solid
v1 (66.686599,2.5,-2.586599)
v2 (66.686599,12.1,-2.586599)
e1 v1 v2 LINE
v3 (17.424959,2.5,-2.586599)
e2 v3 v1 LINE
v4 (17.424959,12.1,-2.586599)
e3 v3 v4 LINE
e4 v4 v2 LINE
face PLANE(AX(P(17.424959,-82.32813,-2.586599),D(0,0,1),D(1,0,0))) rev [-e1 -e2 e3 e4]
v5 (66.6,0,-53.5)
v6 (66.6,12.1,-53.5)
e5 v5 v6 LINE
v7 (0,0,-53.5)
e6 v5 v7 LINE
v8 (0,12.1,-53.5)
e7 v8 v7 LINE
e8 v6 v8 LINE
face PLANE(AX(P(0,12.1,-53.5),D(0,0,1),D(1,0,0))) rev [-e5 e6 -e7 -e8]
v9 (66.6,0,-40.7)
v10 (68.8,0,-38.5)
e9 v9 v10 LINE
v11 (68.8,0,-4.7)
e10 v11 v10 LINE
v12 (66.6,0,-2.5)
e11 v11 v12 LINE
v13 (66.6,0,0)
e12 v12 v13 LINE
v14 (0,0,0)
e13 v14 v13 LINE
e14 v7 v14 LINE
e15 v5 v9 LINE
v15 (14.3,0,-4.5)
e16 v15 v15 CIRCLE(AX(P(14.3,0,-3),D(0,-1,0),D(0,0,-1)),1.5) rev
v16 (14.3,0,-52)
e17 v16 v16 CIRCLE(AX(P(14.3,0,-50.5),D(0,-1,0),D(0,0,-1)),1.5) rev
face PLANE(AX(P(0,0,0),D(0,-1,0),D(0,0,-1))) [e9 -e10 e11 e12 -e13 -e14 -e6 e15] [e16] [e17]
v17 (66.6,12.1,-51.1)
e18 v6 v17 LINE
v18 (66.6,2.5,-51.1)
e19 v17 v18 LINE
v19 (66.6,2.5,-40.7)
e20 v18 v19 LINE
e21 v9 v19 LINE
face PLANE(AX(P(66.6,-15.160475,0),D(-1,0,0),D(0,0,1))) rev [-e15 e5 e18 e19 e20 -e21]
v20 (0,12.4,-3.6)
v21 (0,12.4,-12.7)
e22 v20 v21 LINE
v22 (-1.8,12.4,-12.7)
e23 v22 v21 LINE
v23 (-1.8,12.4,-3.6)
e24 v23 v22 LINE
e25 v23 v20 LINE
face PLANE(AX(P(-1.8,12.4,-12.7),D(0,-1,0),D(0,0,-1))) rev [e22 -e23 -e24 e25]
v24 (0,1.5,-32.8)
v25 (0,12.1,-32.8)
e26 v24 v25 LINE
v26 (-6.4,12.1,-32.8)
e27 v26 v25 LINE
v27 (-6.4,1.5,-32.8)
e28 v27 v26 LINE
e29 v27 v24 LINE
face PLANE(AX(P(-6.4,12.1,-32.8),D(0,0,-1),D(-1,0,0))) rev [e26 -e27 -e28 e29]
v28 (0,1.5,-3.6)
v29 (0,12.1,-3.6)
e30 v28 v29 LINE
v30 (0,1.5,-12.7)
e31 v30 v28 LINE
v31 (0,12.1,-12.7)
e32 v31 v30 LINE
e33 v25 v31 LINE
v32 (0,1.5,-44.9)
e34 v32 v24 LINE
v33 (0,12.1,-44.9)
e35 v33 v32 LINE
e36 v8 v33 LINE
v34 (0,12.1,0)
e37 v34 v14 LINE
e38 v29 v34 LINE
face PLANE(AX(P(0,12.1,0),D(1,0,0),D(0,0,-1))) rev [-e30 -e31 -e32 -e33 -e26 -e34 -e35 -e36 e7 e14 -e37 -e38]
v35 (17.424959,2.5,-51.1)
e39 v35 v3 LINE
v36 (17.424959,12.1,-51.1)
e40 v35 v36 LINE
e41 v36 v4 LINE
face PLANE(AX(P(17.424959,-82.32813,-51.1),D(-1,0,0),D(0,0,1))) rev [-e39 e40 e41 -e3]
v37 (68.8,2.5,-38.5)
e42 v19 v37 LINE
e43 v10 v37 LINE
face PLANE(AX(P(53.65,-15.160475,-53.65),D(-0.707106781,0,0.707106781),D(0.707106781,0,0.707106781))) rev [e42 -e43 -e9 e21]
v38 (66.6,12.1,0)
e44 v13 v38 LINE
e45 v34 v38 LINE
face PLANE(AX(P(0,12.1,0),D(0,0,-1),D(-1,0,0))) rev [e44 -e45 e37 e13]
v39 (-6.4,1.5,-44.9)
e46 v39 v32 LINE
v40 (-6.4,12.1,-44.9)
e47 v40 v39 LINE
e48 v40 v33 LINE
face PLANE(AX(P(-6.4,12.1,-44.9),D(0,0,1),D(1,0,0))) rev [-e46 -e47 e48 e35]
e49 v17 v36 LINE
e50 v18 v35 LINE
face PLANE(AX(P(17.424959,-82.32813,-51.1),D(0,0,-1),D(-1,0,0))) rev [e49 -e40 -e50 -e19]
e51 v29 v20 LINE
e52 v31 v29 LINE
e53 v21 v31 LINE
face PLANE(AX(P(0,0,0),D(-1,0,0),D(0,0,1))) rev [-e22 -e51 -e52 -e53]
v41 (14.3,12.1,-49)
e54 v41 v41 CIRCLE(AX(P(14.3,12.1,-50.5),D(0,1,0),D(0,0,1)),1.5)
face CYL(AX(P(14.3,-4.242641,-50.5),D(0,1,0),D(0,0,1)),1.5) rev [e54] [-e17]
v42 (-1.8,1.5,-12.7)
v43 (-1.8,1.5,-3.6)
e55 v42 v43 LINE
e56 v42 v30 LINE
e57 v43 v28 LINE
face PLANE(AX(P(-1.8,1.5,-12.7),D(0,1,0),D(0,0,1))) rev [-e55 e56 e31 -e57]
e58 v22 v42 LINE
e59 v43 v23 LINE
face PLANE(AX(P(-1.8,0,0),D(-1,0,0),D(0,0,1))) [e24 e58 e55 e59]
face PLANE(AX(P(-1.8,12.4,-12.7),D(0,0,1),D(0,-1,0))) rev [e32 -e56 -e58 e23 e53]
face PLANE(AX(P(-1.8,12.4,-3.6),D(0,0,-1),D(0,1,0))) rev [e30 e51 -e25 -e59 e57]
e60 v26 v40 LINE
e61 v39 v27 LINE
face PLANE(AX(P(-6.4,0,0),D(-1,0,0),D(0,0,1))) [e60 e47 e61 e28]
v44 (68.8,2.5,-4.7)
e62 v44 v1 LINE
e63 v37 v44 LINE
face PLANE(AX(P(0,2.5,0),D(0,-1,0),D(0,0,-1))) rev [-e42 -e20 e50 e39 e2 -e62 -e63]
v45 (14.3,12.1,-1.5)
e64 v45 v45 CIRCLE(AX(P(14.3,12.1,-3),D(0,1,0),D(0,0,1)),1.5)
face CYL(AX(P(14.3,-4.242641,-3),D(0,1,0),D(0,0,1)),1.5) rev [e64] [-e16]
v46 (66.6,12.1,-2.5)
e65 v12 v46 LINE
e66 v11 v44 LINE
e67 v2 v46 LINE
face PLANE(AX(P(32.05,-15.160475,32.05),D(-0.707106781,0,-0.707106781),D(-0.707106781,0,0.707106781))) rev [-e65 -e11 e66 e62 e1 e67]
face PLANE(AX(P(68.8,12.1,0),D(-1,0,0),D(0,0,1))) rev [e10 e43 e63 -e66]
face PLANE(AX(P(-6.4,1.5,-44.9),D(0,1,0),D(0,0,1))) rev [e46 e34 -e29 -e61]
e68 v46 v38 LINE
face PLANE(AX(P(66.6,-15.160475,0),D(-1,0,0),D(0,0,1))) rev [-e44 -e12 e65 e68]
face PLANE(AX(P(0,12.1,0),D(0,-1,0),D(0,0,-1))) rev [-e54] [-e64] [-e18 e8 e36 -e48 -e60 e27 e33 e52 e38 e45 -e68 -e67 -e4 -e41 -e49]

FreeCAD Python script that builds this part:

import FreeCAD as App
import Part
import Sketcher

V = App.Vector

doc = App.newDocument("Part")
body = doc.addObject("PartDesign::Body", "Body")

# Sketch on XZ plane
sketch1 = body.newObject("Sketcher::SketchObject", "Sketch")
sketch1.AttachmentSupport = (doc.getObject("XZ_Plane"), [""])
sketch1.MapMode = "FlatFace"
sketch1.addGeometry([
    Part.LineSegment(V(0, -54, 0), V(0, 0, 0)),
    Part.LineSegment(V(0, 0, 0), V(69, 0, 0)),
    Part.LineSegment(V(69, 0, 0), V(69, -54, 0)),
    Part.LineSegment(V(69, -54, 0), V(0, -54, 0)),
], False)
sketch1.addConstraint([
    Sketcher.Constraint("Coincident", 0, 2, 1, 1),
    Sketcher.Constraint("Coincident", 1, 2, 2, 1),
    Sketcher.Constraint("Coincident", 2, 2, 3, 1),
    Sketcher.Constraint("Coincident", 3, 2, 0, 1),
    Sketcher.Constraint("Vertical", 0),
    Sketcher.Constraint("Horizontal", 1),
    Sketcher.Constraint("Vertical", 2),
    Sketcher.Constraint("Horizontal", 3),
    Sketcher.Constraint("Coincident", 0, 2, -1, 1),
    Sketcher.Constraint("DistanceX", 1, 1, 1, 2, 68.8),
    Sketcher.Constraint("DistanceY", 0, 1, 0, 2, 53.5),
])
pad1 = body.newObject("PartDesign::Pad", "Pad")
pad1.Profile = sketch1
pad1.Length = 12.1
pad1.Reversed = True

# Sketch on XZ plane
sketch2 = body.newObject("Sketcher::SketchObject", "Sketch001")
sketch2.AttachmentSupport = (doc.getObject("XZ_Plane"), [""])
sketch2.MapMode = "FlatFace"
sketch2.AttachmentOffset = App.Placement(V(0, 0, -12.1), App.Rotation())
sketch2.addGeometry([
    Part.LineSegment(V(68.8, 0, 0), V(68.8, -4.7, 0)),  # 0
    Part.LineSegment(V(68.8, -4.7, 0), V(66.6, -2.5, 0)),  # 1
    Part.LineSegment(V(66.6, -2.5, 0), V(66.6, 0, 0)),  # 2
    Part.LineSegment(V(66.6, 0, 0), V(68.8, 0, 0)),  # 3
    Part.LineSegment(V(68.8, -53.5, 0), V(66.6, -53.5, 0)),  # 4
    Part.LineSegment(V(66.6, -53.5, 0), V(66.6, -40.7, 0)),  # 5
    Part.LineSegment(V(66.6, -40.7, 0), V(68.8, -38.5, 0)),  # 6
    Part.LineSegment(V(68.8, -38.5, 0), V(68.8, -53.5, 0)),  # 7
], False)
sketch2.addConstraint([
    Sketcher.Constraint("Coincident", 0, 2, 1, 1),
    Sketcher.Constraint("Coincident", 1, 2, 2, 1),
    Sketcher.Constraint("Coincident", 2, 2, 3, 1),
    Sketcher.Constraint("Coincident", 3, 2, 0, 1),
    Sketcher.Constraint("Coincident", 4, 2, 5, 1),
    Sketcher.Constraint("Coincident", 5, 2, 6, 1),
    Sketcher.Constraint("Coincident", 6, 2, 7, 1),
    Sketcher.Constraint("Coincident", 7, 2, 4, 1),
    Sketcher.Constraint("Vertical", 0),
    Sketcher.Constraint("Vertical", 2),
    Sketcher.Constraint("Horizontal", 3),
    Sketcher.Constraint("Horizontal", 4),
    Sketcher.Constraint("Vertical", 5),
    Sketcher.Constraint("Vertical", 7),
    Sketcher.Constraint("PointOnObject", 2, 2, -1),
    Sketcher.Constraint("Perpendicular", 1, 6),
    Sketcher.Constraint("Vertical", 2, 2, 4, 2),
    Sketcher.Constraint("Vertical", 3, 2, 6, 2),
    Sketcher.Constraint("Equal", 1, 6),
    Sketcher.Constraint("DistanceY", 7, 2, 7, 1, 15.0),
    Sketcher.Constraint("DistanceX", 3, 1, 3, 2, 2.2),
    Sketcher.Constraint("DistanceY", 0, 2, 0, 1, 4.7),
    Sketcher.Constraint("DistanceY", 4, 2, 1, 2, 51.0),
    Sketcher.Constraint("DistanceX", -1, 1, 0, 2, 68.8),
])
pocket1 = body.newObject("PartDesign::Pocket", "Pocket")
pocket1.Profile = sketch2
pocket1.Length = 12.1
pocket1.Reversed = True

# Sketch on YZ plane
sketch3 = body.newObject("Sketcher::SketchObject", "Sketch002")
sketch3.AttachmentSupport = (doc.getObject("YZ_Plane"), [""])
sketch3.MapMode = "FlatFace"
sketch3.addGeometry([
    Part.LineSegment(V(12, -45, 0), V(2, -45, 0)),
    Part.LineSegment(V(2, -45, 0), V(2, -33, 0)),
    Part.LineSegment(V(2, -33, 0), V(12, -33, 0)),
    Part.LineSegment(V(12, -33, 0), V(12, -45, 0)),
], False)
sketch3.addConstraint([
    Sketcher.Constraint("Coincident", 0, 2, 1, 1),
    Sketcher.Constraint("Coincident", 1, 2, 2, 1),
    Sketcher.Constraint("Coincident", 2, 2, 3, 1),
    Sketcher.Constraint("Coincident", 3, 2, 0, 1),
    Sketcher.Constraint("Horizontal", 0),
    Sketcher.Constraint("Vertical", 1),
    Sketcher.Constraint("Horizontal", 2),
    Sketcher.Constraint("Vertical", 3),
    Sketcher.Constraint("DistanceX", 0, 2, 0, 1, 10.6),
    Sketcher.Constraint("DistanceY", 1, 1, 1, 2, 12.1),
    Sketcher.Constraint("DistanceX", -1, 1, 0, 2, 1.5),
    Sketcher.Constraint("DistanceY", 0, 2, -1, 1, 44.9),
])
pad2 = body.newObject("PartDesign::Pad", "Pad001")
pad2.Profile = sketch3
pad2.Length = 6.4
pad2.Reversed = True

# Sketch on YZ plane
sketch4 = body.newObject("Sketcher::SketchObject", "Sketch003")
sketch4.AttachmentSupport = (doc.getObject("YZ_Plane"), [""])
sketch4.MapMode = "FlatFace"
sketch4.addGeometry([
    Part.LineSegment(V(12, -13, 0), V(2, -13, 0)),
    Part.LineSegment(V(2, -13, 0), V(2, -4, 0)),
    Part.LineSegment(V(2, -4, 0), V(12, -4, 0)),
    Part.LineSegment(V(12, -4, 0), V(12, -13, 0)),
], False)
sketch4.addConstraint([
    Sketcher.Constraint("Coincident", 0, 2, 1, 1),
    Sketcher.Constraint("Coincident", 1, 2, 2, 1),
    Sketcher.Constraint("Coincident", 2, 2, 3, 1),
    Sketcher.Constraint("Coincident", 3, 2, 0, 1),
    Sketcher.Constraint("Horizontal", 0),
    Sketcher.Constraint("Vertical", 1),
    Sketcher.Constraint("Horizontal", 2),
    Sketcher.Constraint("Vertical", 3),
    Sketcher.Constraint("DistanceX", 0, 2, 0, 1, 10.9),
    Sketcher.Constraint("DistanceY", 1, 1, 1, 2, 9.1),
    Sketcher.Constraint("DistanceX", -1, 1, 0, 2, 1.5),
    Sketcher.Constraint("DistanceY", 0, 2, -1, 1, 12.7),
])
pad3 = body.newObject("PartDesign::Pad", "Pad002")
pad3.Profile = sketch4
pad3.Length = 1.8
pad3.Reversed = True

# Sketch on XZ plane
sketch5 = body.newObject("Sketcher::SketchObject", "Sketch004")
sketch5.AttachmentSupport = (doc.getObject("XZ_Plane"), [""])
sketch5.MapMode = "FlatFace"
sketch5.AttachmentOffset = App.Placement(V(0, 0, -12.1), App.Rotation())
sketch5.addGeometry([
    Part.Circle(V(14.3, -50.5, 0), V(0, 0, 1), 1.5),
    Part.Circle(V(14.3, -3, 0), V(0, 0, 1), 1.5),
], False)
sketch5.addConstraint([
    Sketcher.Constraint("Equal", 0, 1),
    Sketcher.Constraint("Vertical", 0, 3, 1, 3),
    Sketcher.Constraint("Diameter", 0, 3.0),
    Sketcher.Constraint("DistanceY", 1, 3, -1, 1, 3.0),
    Sketcher.Constraint("DistanceX", -1, 1, 0, 3, 14.3),
    Sketcher.Constraint("DistanceY", 0, 3, -1, 1, 50.5),
])
pocket2 = body.newObject("PartDesign::Pocket", "Pocket001")
pocket2.Profile = sketch5
pocket2.Length = 12.1
pocket2.Reversed = True

# Sketch on XZ plane
sketch6 = body.newObject("Sketcher::SketchObject", "Sketch005")
sketch6.AttachmentSupport = (doc.getObject("XZ_Plane"), [""])
sketch6.MapMode = "FlatFace"
sketch6.AttachmentOffset = App.Placement(V(0, 0, -12.1), App.Rotation())
sketch6.addGeometry([
    Part.LineSegment(V(17, -51, 0), V(17, -3, 0)),
    Part.LineSegment(V(17, -3, 0), V(84, -3, 0)),
    Part.LineSegment(V(84, -3, 0), V(84, -51, 0)),
    Part.LineSegment(V(84, -51, 0), V(17, -51, 0)),
], False)
sketch6.addConstraint([
    Sketcher.Constraint("Coincident", 0, 2, 1, 1),
    Sketcher.Constraint("Coincident", 1, 2, 2, 1),
    Sketcher.Constraint("Coincident", 2, 2, 3, 1),
    Sketcher.Constraint("Coincident", 3, 2, 0, 1),
    Sketcher.Constraint("Vertical", 0),
    Sketcher.Constraint("Horizontal", 1),
    Sketcher.Constraint("Vertical", 2),
    Sketcher.Constraint("Horizontal", 3),
    Sketcher.Constraint("DistanceY", 2, 2, -1, 1, 51.1),
    Sketcher.Constraint("DistanceY", 0, 1, 0, 2, 48.513401),
    Sketcher.Constraint("DistanceX", 1, 1, 1, 2, 66.515945),
    Sketcher.Constraint("DistanceX", -1, 1, 0, 2, 17.424959),
])
pocket3 = body.newObject("PartDesign::Pocket", "Pocket002")
pocket3.Profile = sketch6
pocket3.Length = 9.6
pocket3.Reversed = True

doc.recompute()
